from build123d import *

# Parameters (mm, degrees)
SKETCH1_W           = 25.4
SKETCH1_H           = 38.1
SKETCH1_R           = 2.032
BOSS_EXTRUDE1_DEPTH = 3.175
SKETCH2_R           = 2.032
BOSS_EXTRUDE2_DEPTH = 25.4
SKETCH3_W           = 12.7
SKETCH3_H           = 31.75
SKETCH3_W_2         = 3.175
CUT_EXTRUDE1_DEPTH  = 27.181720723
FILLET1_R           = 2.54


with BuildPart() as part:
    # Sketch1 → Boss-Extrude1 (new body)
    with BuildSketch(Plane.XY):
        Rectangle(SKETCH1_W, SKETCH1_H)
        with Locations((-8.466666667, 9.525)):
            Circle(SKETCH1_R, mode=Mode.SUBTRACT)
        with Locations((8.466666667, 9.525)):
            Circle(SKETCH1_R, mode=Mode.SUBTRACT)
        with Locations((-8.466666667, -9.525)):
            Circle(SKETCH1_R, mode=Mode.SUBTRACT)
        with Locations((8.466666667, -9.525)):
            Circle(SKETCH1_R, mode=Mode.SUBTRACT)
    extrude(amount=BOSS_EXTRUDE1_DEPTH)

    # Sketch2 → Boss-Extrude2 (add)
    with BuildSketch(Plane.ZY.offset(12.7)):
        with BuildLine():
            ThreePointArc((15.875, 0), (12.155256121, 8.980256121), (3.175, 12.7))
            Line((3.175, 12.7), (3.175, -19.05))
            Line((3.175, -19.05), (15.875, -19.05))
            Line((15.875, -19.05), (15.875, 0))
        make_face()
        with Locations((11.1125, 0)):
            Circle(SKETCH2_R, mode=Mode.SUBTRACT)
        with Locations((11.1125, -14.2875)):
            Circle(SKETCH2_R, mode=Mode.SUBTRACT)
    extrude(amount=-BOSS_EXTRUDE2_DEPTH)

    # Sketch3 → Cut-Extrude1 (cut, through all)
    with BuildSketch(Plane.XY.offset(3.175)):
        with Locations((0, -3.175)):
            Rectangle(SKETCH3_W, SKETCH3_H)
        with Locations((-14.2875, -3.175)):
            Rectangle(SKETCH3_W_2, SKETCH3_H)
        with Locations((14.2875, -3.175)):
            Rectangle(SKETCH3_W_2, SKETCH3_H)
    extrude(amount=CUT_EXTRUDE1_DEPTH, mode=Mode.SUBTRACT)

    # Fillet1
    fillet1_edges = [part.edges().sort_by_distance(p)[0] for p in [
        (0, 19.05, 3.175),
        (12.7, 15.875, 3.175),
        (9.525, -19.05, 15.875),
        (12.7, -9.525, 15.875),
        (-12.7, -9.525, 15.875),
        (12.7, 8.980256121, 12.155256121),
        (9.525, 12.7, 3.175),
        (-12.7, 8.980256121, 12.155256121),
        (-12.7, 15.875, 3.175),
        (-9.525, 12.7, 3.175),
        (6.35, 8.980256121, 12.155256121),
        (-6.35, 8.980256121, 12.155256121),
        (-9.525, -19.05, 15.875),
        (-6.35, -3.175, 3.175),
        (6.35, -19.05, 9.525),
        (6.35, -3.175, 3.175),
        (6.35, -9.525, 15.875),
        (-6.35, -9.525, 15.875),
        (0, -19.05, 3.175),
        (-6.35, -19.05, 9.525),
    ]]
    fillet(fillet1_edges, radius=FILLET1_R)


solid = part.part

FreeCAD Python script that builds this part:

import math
import FreeCAD as App
import Part
import Sketcher
Q = App.Units.Quantity


def edges_at(feature, points):
    """Names of the edges that pass closest to the given points."""
    edges = feature.Shape.Edges
    near = lambda p: min(range(len(edges)), key=lambda i: edges[i].distToShape(Part.Vertex(*p))[0])
    return sorted({f"Edge{near(p) + 1}" for p in points})


def add_polygon(sketch, points):
    """Adds a closed chain of lines whose ends are joined by coincident constraints."""
    first, n = sketch.GeometryCount, len(points)
    for a, b in zip(points, points[1:] + points[:1]):
        sketch.addGeometry(Part.LineSegment(App.Vector(*a, 0), App.Vector(*b, 0)), False)
    for i in range(n):
        sketch.addConstraint(Sketcher.Constraint("Coincident", first + i, 2, first + (i + 1) % n, 1))

doc = App.newDocument("Part")
body = doc.addObject("PartDesign::Body", "Body")

# Sketch on XY plane
sketch1 = body.newObject("Sketcher::SketchObject", "Sketch")
sketch1.AttachmentSupport = (doc.getObject("XY_Plane"), [""])
sketch1.MapMode = "FlatFace"
add_polygon(sketch1, [(-12.7, 19.1), (-12.7, -19.1), (12.7, -19.1), (12.7, 19.1)])  # lines 0-3
sketch1.addGeometry(Part.Circle(App.Vector(-8.5, -9.5, 0), App.Vector(0, 0, 1), 2), False)  # 4
sketch1.addGeometry(Part.Circle(App.Vector(8.5, -9.5, 0), App.Vector(0, 0, 1), 2), False)  # 5
sketch1.addGeometry(Part.Circle(App.Vector(-8.5, 9.5, 0), App.Vector(0, 0, 1), 2), False)  # 6
sketch1.addGeometry(Part.Circle(App.Vector(8.5, 9.5, 0), App.Vector(0, 0, 1), 2), False)  # 7
sketch1.addConstraint([
    Sketcher.Constraint("Vertical", 0),
    Sketcher.Constraint("Horizontal", 1),
    Sketcher.Constraint("Vertical", 2),
    Sketcher.Constraint("Horizontal", 3),
    Sketcher.Constraint("Equal", 4, 5),
    Sketcher.Constraint("Equal", 5, 6),
    Sketcher.Constraint("Equal", 6, 7),
    Sketcher.Constraint("Symmetric", 5, 3, 6, 3, -1, 1),
    Sketcher.Constraint("Symmetric", 4, 3, 7, 3, -1, 1),
    Sketcher.Constraint("Symmetric", 0, 2, 2, 2, -1, 1),
    Sketcher.Constraint("Symmetric", 4, 3, 5, 3, -2),
    Sketcher.Constraint("Diameter", 4, Q("0.16 in")),
    Sketcher.Constraint("DistanceX", 1, 1, 1, 2, Q("1 in")),
    Sketcher.Constraint("DistanceY", 0, 2, 0, 1, Q("1.5 in")),
    Sketcher.Constraint("DistanceY", 4, 3, 6, 3, Q("0.75 in")),
    Sketcher.Constraint("DistanceX", 4, 3, -1, 1, Q("8.466667 mm")),
])
pad1 = body.newObject("PartDesign::Pad", "Pad")
pad1.Profile = sketch1
pad1.Length = Q("0.125 in")

# Sketch on YZ plane
sketch2 = body.newObject("Sketcher::SketchObject", "Sketch001")
sketch2.AttachmentSupport = (doc.getObject("YZ_Plane"), [""])
sketch2.MapMode = "FlatFace"
sketch2.AttachmentOffset = App.Placement(App.Vector(0, 0, -0.5 * 25.4), App.Rotation())
sketch2.addGeometry([
    Part.ArcOfCircle(Part.Circle(App.Vector(0, 3.2, 0), App.Vector(0, 0, 1), 12.7), math.radians(0), math.radians(90)),  # 0
    Part.LineSegment(App.Vector(12.7, 3.2, 0), App.Vector(-19.1, 3.2, 0)),  # 1
    Part.LineSegment(App.Vector(-19.1, 3.2, 0), App.Vector(-19.1, 15.9, 0)),  # 2
    Part.LineSegment(App.Vector(-19.1, 15.9, 0), App.Vector(0, 15.9, 0)),  # 3
    Part.Circle(App.Vector(-14.3, 11.1, 0), App.Vector(0, 0, 1), 2),  # 4
    Part.Circle(App.Vector(0, 11.1, 0), App.Vector(0, 0, 1), 2),  # 5
], False)
sketch2.addConstraint([
    Sketcher.Constraint("Coincident", 0, 1, 1, 1),
    Sketcher.Constraint("Coincident", 1, 2, 2, 1),
    Sketcher.Constraint("Coincident", 2, 2, 3, 1),
    Sketcher.Constraint("Tangent", 3, 2, 0, 2),
    Sketcher.Constraint("Horizontal", 1),
    Sketcher.Constraint("Vertical", 2),
    Sketcher.Constraint("Horizontal", 3),
    Sketcher.Constraint("Equal", 4, 5),
    Sketcher.Constraint("PointOnObject", 0, 3, -2),
    Sketcher.Constraint("PointOnObject", 5, 3, -2),
    Sketcher.Constraint("Horizontal", 4, 3, 5, 3),
    Sketcher.Constraint("Radius", 0, Q("0.5 in")),
    Sketcher.Constraint("Diameter", 4, Q("0.16 in")),
    Sketcher.Constraint("DistanceY", 2, 1, 2, 2, Q("0.5 in")),
    Sketcher.Constraint("DistanceX", 1, 2, 1, 1, Q("1.25 in")),
    Sketcher.Constraint("DistanceY", -1, 1, 0, 3, Q("0.125 in")),
    Sketcher.Constraint("DistanceX", 4, 3, -1, 1, Q("0.5625 in")),
    Sketcher.Constraint("DistanceY", -1, 1, 4, 3, Q("0.4375 in")),
])
pad2 = body.newObject("PartDesign::Pad", "Pad001")
pad2.Profile = sketch2
pad2.Length = Q("1 in")

# Sketch on XY plane
sketch3 = body.newObject("Sketcher::SketchObject", "Sketch002")
sketch3.AttachmentSupport = (doc.getObject("XY_Plane"), [""])
sketch3.MapMode = "FlatFace"
sketch3.AttachmentOffset = App.Placement(App.Vector(0, 0, 0.125 * 25.4), App.Rotation())
add_polygon(sketch3, [(-6.3, 12.7), (-6.3, -19.1), (6.3, -19.1), (6.3, 12.7)])  # lines 0-3
add_polygon(sketch3, [(-15.9, 12.7), (-15.9, -19.1), (-12.7, -19.1), (-12.7, 12.7)])  # lines 4-7
add_polygon(sketch3, [(12.7, 12.7), (12.7, -19.1), (15.9, -19.1), (15.9, 12.7)])  # lines 8-11
sketch3.addConstraint([
    Sketcher.Constraint("Vertical", 0),
    Sketcher.Constraint("Horizontal", 1),
    Sketcher.Constraint("Vertical", 2),
    Sketcher.Constraint("Horizontal", 3),
    Sketcher.Constraint("Vertical", 4),
    Sketcher.Constraint("Horizontal", 5),
    Sketcher.Constraint("Vertical", 6),
    Sketcher.Constraint("Horizontal", 7),
    Sketcher.Constraint("Vertical", 8),
    Sketcher.Constraint("Horizontal", 9),
    Sketcher.Constraint("Vertical", 10),
    Sketcher.Constraint("Horizontal", 11),
    Sketcher.Constraint("Symmetric", 5, 2, 8, 2, -2),
    Sketcher.Constraint("Symmetric", 7, 2, 10, 2, -2),
    Sketcher.Constraint("Horizontal", 1, 2, 4, 2),
    Sketcher.Constraint("Horizontal", 3, 2, 6, 2),
    Sketcher.Constraint("DistanceX", 1, 1, 1, 2, Q("0.5 in")),
    Sketcher.Constraint("DistanceX", 5, 2, 8, 2, Q("1 in")),
    Sketcher.Constraint("DistanceY", 0, 2, 0, 1, Q("1.25 in")),
    Sketcher.Constraint("DistanceY", -1, 1, 2, 2, Q("0.5 in")),
    Sketcher.Constraint("DistanceX", 5, 1, 5, 2, Q("0.125 in")),
    Sketcher.Constraint("DistanceX", 0, 2, -1, 1, Q("0.25 in")),
])
pocket1 = body.newObject("PartDesign::Pocket", "Pocket")
pocket1.Profile = sketch3
pocket1.Type = "ThroughAll"
pocket1.Reversed = True
doc.recompute()

fillet = body.newObject("PartDesign::Fillet", "Fillet")
fillet.Base = (pocket1, edges_at(pocket1, [
    (0, 19.05, 3.175),
    (12.7, 15.875, 3.175),
    (9.525, -19.05, 15.875),
    (12.7, -9.525, 15.875),
    (-12.7, -9.525, 15.875),
    (12.7, 8.98, 12.155),
    (9.525, 12.7, 3.175),
    (-12.7, 8.98, 12.155),
    (-12.7, 15.875, 3.175),
    (-9.525, 12.7, 3.175),
    (6.35, 8.98, 12.155),
    (-6.35, 8.98, 12.155),
    (-9.525, -19.05, 15.875),
    (-6.35, -3.175, 3.175),
    (6.35, -19.05, 9.525),
    (6.35, -3.175, 3.175),
    (6.35, -9.525, 15.875),
    (-6.35, -9.525, 15.875),
    (0, -19.05, 3.175),
    (-6.35, -19.05, 9.525),
]))
fillet.Radius = Q("0.1 in")

doc.recompute()
